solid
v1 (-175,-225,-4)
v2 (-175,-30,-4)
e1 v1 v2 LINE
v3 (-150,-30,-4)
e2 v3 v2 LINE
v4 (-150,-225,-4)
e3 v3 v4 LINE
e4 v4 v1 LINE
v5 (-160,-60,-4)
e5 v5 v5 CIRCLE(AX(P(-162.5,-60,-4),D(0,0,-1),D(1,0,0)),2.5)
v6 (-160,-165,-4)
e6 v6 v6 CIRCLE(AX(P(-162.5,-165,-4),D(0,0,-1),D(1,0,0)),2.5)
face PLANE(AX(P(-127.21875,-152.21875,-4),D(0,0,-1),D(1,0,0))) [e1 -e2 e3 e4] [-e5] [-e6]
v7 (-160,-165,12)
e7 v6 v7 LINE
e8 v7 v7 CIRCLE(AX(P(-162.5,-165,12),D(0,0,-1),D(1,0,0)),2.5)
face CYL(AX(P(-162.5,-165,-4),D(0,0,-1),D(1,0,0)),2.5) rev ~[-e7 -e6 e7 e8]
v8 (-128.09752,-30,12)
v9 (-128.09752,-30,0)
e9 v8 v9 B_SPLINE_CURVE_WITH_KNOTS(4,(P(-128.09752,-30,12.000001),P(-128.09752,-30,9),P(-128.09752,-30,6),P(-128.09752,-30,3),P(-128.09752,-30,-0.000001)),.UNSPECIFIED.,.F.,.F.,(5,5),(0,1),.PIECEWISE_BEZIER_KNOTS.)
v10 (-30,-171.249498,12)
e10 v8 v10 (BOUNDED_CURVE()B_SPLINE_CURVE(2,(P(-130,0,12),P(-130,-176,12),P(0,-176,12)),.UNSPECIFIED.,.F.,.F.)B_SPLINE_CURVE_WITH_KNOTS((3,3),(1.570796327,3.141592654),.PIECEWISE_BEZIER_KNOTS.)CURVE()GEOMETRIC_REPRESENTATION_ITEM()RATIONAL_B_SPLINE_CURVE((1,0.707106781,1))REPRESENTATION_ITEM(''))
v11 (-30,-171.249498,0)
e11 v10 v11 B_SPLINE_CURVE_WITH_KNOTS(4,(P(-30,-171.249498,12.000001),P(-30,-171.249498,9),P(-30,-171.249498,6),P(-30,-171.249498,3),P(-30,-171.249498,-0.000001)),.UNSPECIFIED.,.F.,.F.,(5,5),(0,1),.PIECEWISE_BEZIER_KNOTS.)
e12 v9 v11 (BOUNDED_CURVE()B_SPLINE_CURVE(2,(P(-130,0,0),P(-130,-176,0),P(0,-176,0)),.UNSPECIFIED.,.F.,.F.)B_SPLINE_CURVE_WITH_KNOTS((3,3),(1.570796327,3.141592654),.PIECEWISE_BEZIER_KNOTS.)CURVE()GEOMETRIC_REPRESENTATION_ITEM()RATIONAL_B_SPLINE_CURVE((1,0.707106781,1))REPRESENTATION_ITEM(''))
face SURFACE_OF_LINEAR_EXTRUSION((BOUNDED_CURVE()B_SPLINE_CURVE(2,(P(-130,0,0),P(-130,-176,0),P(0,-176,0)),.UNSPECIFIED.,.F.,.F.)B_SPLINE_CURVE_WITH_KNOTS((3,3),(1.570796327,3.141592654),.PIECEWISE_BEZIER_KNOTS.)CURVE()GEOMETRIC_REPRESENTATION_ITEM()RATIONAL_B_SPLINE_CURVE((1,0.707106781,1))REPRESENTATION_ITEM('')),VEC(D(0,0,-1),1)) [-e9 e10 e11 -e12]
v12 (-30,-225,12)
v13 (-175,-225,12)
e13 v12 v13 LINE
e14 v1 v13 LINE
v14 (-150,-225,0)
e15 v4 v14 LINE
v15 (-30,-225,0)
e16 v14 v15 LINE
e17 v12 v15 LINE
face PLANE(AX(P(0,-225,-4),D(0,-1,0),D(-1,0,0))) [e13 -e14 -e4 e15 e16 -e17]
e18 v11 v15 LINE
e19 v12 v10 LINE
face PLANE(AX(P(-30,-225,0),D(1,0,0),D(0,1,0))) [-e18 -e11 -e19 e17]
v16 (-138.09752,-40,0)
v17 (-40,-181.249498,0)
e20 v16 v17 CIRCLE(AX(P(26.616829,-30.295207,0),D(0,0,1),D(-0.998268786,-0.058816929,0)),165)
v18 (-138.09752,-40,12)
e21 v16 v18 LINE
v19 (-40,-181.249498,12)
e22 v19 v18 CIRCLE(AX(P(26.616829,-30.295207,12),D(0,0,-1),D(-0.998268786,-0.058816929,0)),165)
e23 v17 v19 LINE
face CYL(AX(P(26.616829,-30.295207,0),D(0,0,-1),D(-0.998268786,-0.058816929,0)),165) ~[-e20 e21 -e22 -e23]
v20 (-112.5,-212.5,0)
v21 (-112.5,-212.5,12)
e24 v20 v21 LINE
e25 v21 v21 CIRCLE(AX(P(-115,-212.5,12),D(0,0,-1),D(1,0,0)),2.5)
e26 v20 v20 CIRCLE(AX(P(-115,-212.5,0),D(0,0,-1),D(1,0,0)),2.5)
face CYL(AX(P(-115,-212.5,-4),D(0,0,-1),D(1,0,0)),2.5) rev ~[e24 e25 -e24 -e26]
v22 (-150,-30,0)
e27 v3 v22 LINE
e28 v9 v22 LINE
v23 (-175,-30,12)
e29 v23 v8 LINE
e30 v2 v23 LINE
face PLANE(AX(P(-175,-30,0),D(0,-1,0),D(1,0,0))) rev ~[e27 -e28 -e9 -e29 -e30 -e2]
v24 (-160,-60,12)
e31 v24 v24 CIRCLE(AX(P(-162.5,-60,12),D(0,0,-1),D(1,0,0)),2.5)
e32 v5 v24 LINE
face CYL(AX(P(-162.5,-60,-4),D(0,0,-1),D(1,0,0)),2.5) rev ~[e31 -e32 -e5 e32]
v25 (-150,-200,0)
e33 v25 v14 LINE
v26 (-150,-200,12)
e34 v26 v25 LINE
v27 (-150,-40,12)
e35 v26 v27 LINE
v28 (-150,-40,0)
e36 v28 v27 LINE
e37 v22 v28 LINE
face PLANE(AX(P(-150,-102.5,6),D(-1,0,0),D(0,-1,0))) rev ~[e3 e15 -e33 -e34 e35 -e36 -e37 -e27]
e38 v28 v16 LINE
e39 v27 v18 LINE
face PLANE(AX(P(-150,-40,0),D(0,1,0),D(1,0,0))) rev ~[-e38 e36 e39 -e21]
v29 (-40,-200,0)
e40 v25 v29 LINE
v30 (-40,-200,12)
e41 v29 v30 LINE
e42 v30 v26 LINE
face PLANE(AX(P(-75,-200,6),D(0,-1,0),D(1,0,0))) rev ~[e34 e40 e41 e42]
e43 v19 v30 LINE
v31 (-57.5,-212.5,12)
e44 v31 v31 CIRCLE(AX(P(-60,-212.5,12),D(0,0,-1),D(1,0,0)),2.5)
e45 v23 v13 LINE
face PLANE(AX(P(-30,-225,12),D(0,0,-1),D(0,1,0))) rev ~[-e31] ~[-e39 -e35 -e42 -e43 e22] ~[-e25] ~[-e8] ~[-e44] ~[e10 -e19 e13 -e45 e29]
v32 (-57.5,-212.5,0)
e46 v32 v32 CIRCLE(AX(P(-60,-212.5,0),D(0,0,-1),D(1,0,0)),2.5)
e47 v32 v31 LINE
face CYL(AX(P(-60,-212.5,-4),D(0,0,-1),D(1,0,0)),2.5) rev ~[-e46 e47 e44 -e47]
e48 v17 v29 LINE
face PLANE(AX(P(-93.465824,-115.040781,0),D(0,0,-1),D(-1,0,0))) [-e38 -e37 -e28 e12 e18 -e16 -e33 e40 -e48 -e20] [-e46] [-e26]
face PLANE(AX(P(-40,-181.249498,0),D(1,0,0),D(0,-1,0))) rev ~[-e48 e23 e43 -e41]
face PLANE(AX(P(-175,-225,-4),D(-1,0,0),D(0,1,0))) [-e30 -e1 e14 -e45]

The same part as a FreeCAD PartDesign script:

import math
import FreeCAD as App
import Part
import Sketcher

V = App.Vector


def add_polygon(sketch, points):
    """Adds a closed chain of lines whose ends are joined by coincident constraints."""
    first, n = sketch.GeometryCount, len(points)
    for a, b in zip(points, points[1:] + points[:1]):
        sketch.addGeometry(Part.LineSegment(App.Vector(*a, 0), App.Vector(*b, 0)), False)
    for i in range(n):
        sketch.addConstraint(Sketcher.Constraint("Coincident", first + i, 2, first + (i + 1) % n, 1))

doc = App.newDocument("Part")
body = doc.addObject("PartDesign::Body", "Body")

sketch1 = body.newObject("Sketcher::SketchObject", "Sketch")
sketch1.AttachmentSupport = (doc.getObject("XY_Plane"), [""])
sketch1.MapMode = "FlatFace"
sketch1.addGeometry(Part.BSplineCurve([V(-130, 0, 0), V(-130, -176, 0), V(0, -176, 0)], [3, 3], [1.570796327, 3.141592654], False, 2, [1, 0.707106781, 1], False), False)
sketch1.addGeometry(Part.LineSegment(V(-130, 0, 0), V(-150, 0, 0)), False)
sketch1.addGeometry(Part.LineSegment(V(-150, 0, 0), V(-150, -200, 0)), False)
sketch1.addGeometry(Part.LineSegment(V(-150, -200, 0), V(0, -200, 0)), False)
sketch1.addGeometry(Part.LineSegment(V(0, -200, 0), V(0, -176, 0)), False)
sketch1.addConstraint(Sketcher.Constraint("Block", 0))
sketch1.addConstraint(Sketcher.Constraint("Coincident", 0, 1, 1, 1))
sketch1.addConstraint(Sketcher.Constraint("Coincident", 1, 2, 2, 1))
sketch1.addConstraint(Sketcher.Constraint("Coincident", 2, 2, 3, 1))
sketch1.addConstraint(Sketcher.Constraint("Coincident", 3, 2, 4, 1))
sketch1.addConstraint(Sketcher.Constraint("Coincident", 4, 2, 0, 2))
sketch1.addConstraint(Sketcher.Constraint("Horizontal", 1))
sketch1.addConstraint(Sketcher.Constraint("Vertical", 2))
sketch1.addConstraint(Sketcher.Constraint("Horizontal", 3))
sketch1.addConstraint(Sketcher.Constraint("Vertical", 4))
sketch1.addConstraint(Sketcher.Constraint("DistanceX", 1, 2, 1, 1, 20.0))
sketch1.addConstraint(Sketcher.Constraint("DistanceY", 2, 2, 2, 1, 200.0))
pad1 = body.newObject("PartDesign::Pad", "Pad")
pad1.Profile = sketch1
pad1.Length = 12

sketch2 = body.newObject("Sketcher::SketchObject", "Sketch001")
sketch2.AttachmentSupport = (doc.getObject("XZ_Plane"), [""])
sketch2.MapMode = "FlatFace"
sketch2.AttachmentOffset = App.Placement(V(0, 0, 200), App.Rotation())
add_polygon(sketch2, [(-150, 16), (-150, -4), (0, -4), (0, 16)])
sketch2.addConstraint(Sketcher.Constraint("Vertical", 0))
sketch2.addConstraint(Sketcher.Constraint("Horizontal", 1))
sketch2.addConstraint(Sketcher.Constraint("Vertical", 2))
sketch2.addConstraint(Sketcher.Constraint("Horizontal", 3))
sketch2.addConstraint(Sketcher.Constraint("PointOnObject", 1, 2, -2))
sketch2.addConstraint(Sketcher.Constraint("DistanceX", 1, 1, 1, 2, 150.0))
sketch2.addConstraint(Sketcher.Constraint("DistanceY", 0, 2, 0, 1, 20.0))
sketch2.addConstraint(Sketcher.Constraint("DistanceY", 0, 2, -1, 1, 4.0))
pad2 = body.newObject("PartDesign::Pad", "Pad001")
pad2.Profile = sketch2
pad2.Length = 5

sketch3 = body.newObject("Sketcher::SketchObject", "Sketch002")
sketch3.AttachmentSupport = (doc.getObject("YZ_Plane"), [""])
sketch3.MapMode = "FlatFace"
sketch3.AttachmentOffset = App.Placement(V(0, 0, -150), App.Rotation())
add_polygon(sketch3, [(0, 16), (0, -4), (-205, -4), (-205, 16)])
sketch3.addConstraint(Sketcher.Constraint("Vertical", 0))
sketch3.addConstraint(Sketcher.Constraint("Horizontal", 1))
sketch3.addConstraint(Sketcher.Constraint("Vertical", 2))
sketch3.addConstraint(Sketcher.Constraint("Horizontal", 3))
sketch3.addConstraint(Sketcher.Constraint("PointOnObject", 0, 2, -2))
sketch3.addConstraint(Sketcher.Constraint("DistanceX", 1, 2, 1, 1, 205.0))
sketch3.addConstraint(Sketcher.Constraint("DistanceY", 0, 2, 0, 1, 20.0))
sketch3.addConstraint(Sketcher.Constraint("DistanceY", 0, 2, -1, 1, 4.0))
pad3 = body.newObject("PartDesign::Pad", "Pad002")
pad3.Profile = sketch3
pad3.Length = 5
pad3.Reversed = True

sketch4 = body.newObject("Sketcher::SketchObject", "Sketch003")
sketch4.AttachmentSupport = (doc.getObject("XY_Plane"), [""])
sketch4.MapMode = "FlatFace"
sketch4.AttachmentOffset = App.Placement(V(0, 0, -4), App.Rotation())
add_polygon(sketch4, [(0, -205), (0, -225), (-175, -225), (-175, 0), (-155, 0), (-155, -205)])
sketch4.addGeometry(Part.Circle(V(-162.5, -60, 0), V(0, 0, 1), 2.5), False)
sketch4.addGeometry(Part.Circle(V(-162.5, -165, 0), V(0, 0, 1), 2.5), False)
sketch4.addGeometry(Part.Circle(V(-115, -212.5, 0), V(0, 0, 1), 2.5), False)
sketch4.addGeometry(Part.Circle(V(-60, -212.5, 0), V(0, 0, 1), 2.5), False)
sketch4.addConstraint(Sketcher.Constraint("Vertical", 0))
sketch4.addConstraint(Sketcher.Constraint("Horizontal", 1))
sketch4.addConstraint(Sketcher.Constraint("Vertical", 2))
sketch4.addConstraint(Sketcher.Constraint("Horizontal", 3))
sketch4.addConstraint(Sketcher.Constraint("Vertical", 4))
sketch4.addConstraint(Sketcher.Constraint("Horizontal", 5))
sketch4.addConstraint(Sketcher.Constraint("Equal", 6, 7))
sketch4.addConstraint(Sketcher.Constraint("Equal", 7, 8))
sketch4.addConstraint(Sketcher.Constraint("Equal", 8, 9))
sketch4.addConstraint(Sketcher.Constraint("PointOnObject", 0, 2, -2))
sketch4.addConstraint(Sketcher.Constraint("PointOnObject", 2, 2, -1))
sketch4.addConstraint(Sketcher.Constraint("Horizontal", 8, 3, 9, 3))
sketch4.addConstraint(Sketcher.Constraint("Vertical", 6, 3, 7, 3))
sketch4.addConstraint(Sketcher.Constraint("Equal", 3, 0))
sketch4.addConstraint(Sketcher.Constraint("Diameter", 6, 5.0))
sketch4.addConstraint(Sketcher.Constraint("DistanceX", 1, 2, 1, 1, 175.0))
sketch4.addConstraint(Sketcher.Constraint("DistanceX", 3, 1, 3, 2, 20.0))
sketch4.addConstraint(Sketcher.Constraint("DistanceY", 2, 1, 2, 2, 225.0))
sketch4.addConstraint(Sketcher.Constraint("DistanceY", 6, 3, -1, 1, 60.0))
sketch4.addConstraint(Sketcher.Constraint("DistanceY", 7, 3, -1, 1, 165.0))
sketch4.addConstraint(Sketcher.Constraint("DistanceX", 8, 3, -1, 1, 115.0))
sketch4.addConstraint(Sketcher.Constraint("DistanceX", 9, 3, -1, 1, 60.0))
sketch4.addConstraint(Sketcher.Constraint("DistanceX", 6, 3, -1, 1, 162.5))
sketch4.addConstraint(Sketcher.Constraint("DistanceY", 8, 3, -1, 1, 212.5))
pad4 = body.newObject("PartDesign::Pad", "Pad003")
pad4.Profile = sketch4
pad4.Length = 25

sketch5 = body.newObject("Sketcher::SketchObject", "Sketch004")
sketch5.AttachmentSupport = (doc.getObject("XY_Plane"), [""])
sketch5.MapMode = "FlatFace"
sketch5.AttachmentOffset = App.Placement(V(0, 0, 16), App.Rotation())
add_polygon(sketch5, [(-140, 0), (-155, 0), (-155, -205), (0, -205), (0, -190), (-140, -190)])
sketch5.addConstraint(Sketcher.Constraint("Horizontal", 0))
sketch5.addConstraint(Sketcher.Constraint("Vertical", 1))
sketch5.addConstraint(Sketcher.Constraint("Horizontal", 2))
sketch5.addConstraint(Sketcher.Constraint("Vertical", 3))
sketch5.addConstraint(Sketcher.Constraint("Horizontal", 4))
sketch5.addConstraint(Sketcher.Constraint("Vertical", 5))
sketch5.addConstraint(Sketcher.Constraint("PointOnObject", 0, 2, -1))
sketch5.addConstraint(Sketcher.Constraint("PointOnObject", 2, 2, -2))
sketch5.addConstraint(Sketcher.Constraint("Equal", 0, 3))
sketch5.addConstraint(Sketcher.Constraint("DistanceX", 0, 2, 0, 1, 15.0))
sketch5.addConstraint(Sketcher.Constraint("DistanceX", 2, 1, 2, 2, 155.0))
sketch5.addConstraint(Sketcher.Constraint("DistanceY", 1, 2, 1, 1, 205.0))
pad5 = body.newObject("PartDesign::Pad", "Pad004")
pad5.Profile = sketch5
pad5.Length = 5

sketch6 = body.newObject("Sketcher::SketchObject", "Sketch005")
sketch6.AttachmentSupport = (doc.getObject("XY_Plane"), [""])
sketch6.MapMode = "FlatFace"
add_polygon(sketch6, [(0, 0), (-175, 0), (-175, -30), (-30, -30), (-30, -225), (0, -225)])
sketch6.addConstraint(Sketcher.Constraint("Horizontal", 0))
sketch6.addConstraint(Sketcher.Constraint("Vertical", 1))
sketch6.addConstraint(Sketcher.Constraint("Horizontal", 2))
sketch6.addConstraint(Sketcher.Constraint("Vertical", 3))
sketch6.addConstraint(Sketcher.Constraint("Horizontal", 4))
sketch6.addConstraint(Sketcher.Constraint("Vertical", 5))
sketch6.addConstraint(Sketcher.Constraint("Coincident", 5, 2, -1, 1))
sketch6.addConstraint(Sketcher.Constraint("Equal", 4, 1))
sketch6.addConstraint(Sketcher.Constraint("DistanceX", 0, 2, 0, 1, 175.0))
sketch6.addConstraint(Sketcher.Constraint("DistanceX", 2, 1, 2, 2, 145.0))
sketch6.addConstraint(Sketcher.Constraint("DistanceY", 3, 2, 3, 1, 195.0))
pocket1 = body.newObject("PartDesign::Pocket", "Pocket")
pocket1.Profile = sketch6
pocket1.Length = 50
pocket1.Midplane = True

sketch7 = body.newObject("Sketcher::SketchObject", "Sketch006")
sketch7.AttachmentSupport = (doc.getObject("YZ_Plane"), [""])
sketch7.MapMode = "FlatFace"
sketch7.AttachmentOffset = App.Placement(V(0, 0, -30), App.Rotation())
add_polygon(sketch7, [(-225, 21), (-225, 12), (-30, 12), (-30, 21)])
sketch7.addConstraint(Sketcher.Constraint("Vertical", 0))
sketch7.addConstraint(Sketcher.Constraint("Horizontal", 1))
sketch7.addConstraint(Sketcher.Constraint("Vertical", 2))
sketch7.addConstraint(Sketcher.Constraint("Horizontal", 3))
sketch7.addConstraint(Sketcher.Constraint("DistanceX", 1, 1, 1, 2, 195.0))
sketch7.addConstraint(Sketcher.Constraint("DistanceY", 0, 2, 0, 1, 9.0))
sketch7.addConstraint(Sketcher.Constraint("DistanceX", 0, 2, -1, 1, 225.0))
sketch7.addConstraint(Sketcher.Constraint("DistanceY", -1, 1, 0, 2, 12.0))
pocket2 = body.newObject("PartDesign::Pocket", "Pocket001")
pocket2.Profile = sketch7
pocket2.Type = "ThroughAll"

sketch8 = body.newObject("Sketcher::SketchObject", "Sketch007")
sketch8.AttachmentSupport = (doc.getObject("XY_Plane"), [""])
sketch8.MapMode = "FlatFace"
sketch8.addGeometry(Part.ArcOfCircle(Part.Circle(V(27, -30, 0), V(0, 0, 1), 165), math.radians(-177), math.radians(-114)), False)
sketch8.addGeometry(Part.LineSegment(V(-40, -181, 0), V(-40, -200, 0)), False)
sketch8.addGeometry(Part.LineSegment(V(-40, -200, 0), V(-150, -200, 0)), False)
sketch8.addGeometry(Part.LineSegment(V(-150, -200, 0), V(-150, -40, 0)), False)
sketch8.addGeometry(Part.LineSegment(V(-150, -40, 0), V(-138, -40, 0)), False)
sketch8.addConstraint(Sketcher.Constraint("Coincident", 0, 2, 1, 1))
sketch8.addConstraint(Sketcher.Constraint("Coincident", 1, 2, 2, 1))
sketch8.addConstraint(Sketcher.Constraint("Coincident", 2, 2, 3, 1))
sketch8.addConstraint(Sketcher.Constraint("Coincident", 3, 2, 4, 1))
sketch8.addConstraint(Sketcher.Constraint("Coincident", 4, 2, 0, 1))
sketch8.addConstraint(Sketcher.Constraint("Vertical", 1))
sketch8.addConstraint(Sketcher.Constraint("Horizontal", 2))
sketch8.addConstraint(Sketcher.Constraint("Vertical", 3))
sketch8.addConstraint(Sketcher.Constraint("Horizontal", 4))
sketch8.addConstraint(Sketcher.Constraint("Radius", 0, 165.0))
sketch8.addConstraint(Sketcher.Constraint("DistanceX", 2, 2, 2, 1, 110.0))
sketch8.addConstraint(Sketcher.Constraint("DistanceY", 3, 1, 3, 2, 160.0))
sketch8.addConstraint(Sketcher.Constraint("DistanceX", 0, 2, -1, 1, 40.0))
sketch8.addConstraint(Sketcher.Constraint("DistanceY", 1, 2, -1, 1, 200.0))
sketch8.addConstraint(Sketcher.Constraint("DistanceX", 4, 1, 4, 2, 11.90248))
sketch8.addConstraint(Sketcher.Constraint("DistanceY", 1, 2, 1, 1, 18.750502))
pocket3 = body.newObject("PartDesign::Pocket", "Pocket002")
pocket3.Profile = sketch8
pocket3.Length = 25
pocket3.Reversed = True

sketch9 = body.newObject("Sketcher::SketchObject", "Sketch008")
sketch9.AttachmentSupport = (doc.getObject("XZ_Plane"), [""])
sketch9.MapMode = "FlatFace"
sketch9.AttachmentOffset = App.Placement(V(0, 0, 200), App.Rotation())
add_polygon(sketch9, [(-30, 0), (-30, -4), (-150, -4), (-150, 0)])
sketch9.addConstraint(Sketcher.Constraint("Vertical", 0))
sketch9.addConstraint(Sketcher.Constraint("Horizontal", 1))
sketch9.addConstraint(Sketcher.Constraint("Vertical", 2))
sketch9.addConstraint(Sketcher.Constraint("Horizontal", 3))
sketch9.addConstraint(Sketcher.Constraint("PointOnObject", 2, 2, -1))
sketch9.addConstraint(Sketcher.Constraint("DistanceX", 1, 2, 1, 1, 120.0))
sketch9.addConstraint(Sketcher.Constraint("DistanceY", 0, 2, 0, 1, 4.0))
sketch9.addConstraint(Sketcher.Constraint("DistanceX", 0, 2, -1, 1, 30.0))
pocket4 = body.newObject("PartDesign::Pocket", "Pocket003")
pocket4.Profile = sketch9
pocket4.Type = "ThroughAll"
pocket4.Reversed = True

doc.recompute()
